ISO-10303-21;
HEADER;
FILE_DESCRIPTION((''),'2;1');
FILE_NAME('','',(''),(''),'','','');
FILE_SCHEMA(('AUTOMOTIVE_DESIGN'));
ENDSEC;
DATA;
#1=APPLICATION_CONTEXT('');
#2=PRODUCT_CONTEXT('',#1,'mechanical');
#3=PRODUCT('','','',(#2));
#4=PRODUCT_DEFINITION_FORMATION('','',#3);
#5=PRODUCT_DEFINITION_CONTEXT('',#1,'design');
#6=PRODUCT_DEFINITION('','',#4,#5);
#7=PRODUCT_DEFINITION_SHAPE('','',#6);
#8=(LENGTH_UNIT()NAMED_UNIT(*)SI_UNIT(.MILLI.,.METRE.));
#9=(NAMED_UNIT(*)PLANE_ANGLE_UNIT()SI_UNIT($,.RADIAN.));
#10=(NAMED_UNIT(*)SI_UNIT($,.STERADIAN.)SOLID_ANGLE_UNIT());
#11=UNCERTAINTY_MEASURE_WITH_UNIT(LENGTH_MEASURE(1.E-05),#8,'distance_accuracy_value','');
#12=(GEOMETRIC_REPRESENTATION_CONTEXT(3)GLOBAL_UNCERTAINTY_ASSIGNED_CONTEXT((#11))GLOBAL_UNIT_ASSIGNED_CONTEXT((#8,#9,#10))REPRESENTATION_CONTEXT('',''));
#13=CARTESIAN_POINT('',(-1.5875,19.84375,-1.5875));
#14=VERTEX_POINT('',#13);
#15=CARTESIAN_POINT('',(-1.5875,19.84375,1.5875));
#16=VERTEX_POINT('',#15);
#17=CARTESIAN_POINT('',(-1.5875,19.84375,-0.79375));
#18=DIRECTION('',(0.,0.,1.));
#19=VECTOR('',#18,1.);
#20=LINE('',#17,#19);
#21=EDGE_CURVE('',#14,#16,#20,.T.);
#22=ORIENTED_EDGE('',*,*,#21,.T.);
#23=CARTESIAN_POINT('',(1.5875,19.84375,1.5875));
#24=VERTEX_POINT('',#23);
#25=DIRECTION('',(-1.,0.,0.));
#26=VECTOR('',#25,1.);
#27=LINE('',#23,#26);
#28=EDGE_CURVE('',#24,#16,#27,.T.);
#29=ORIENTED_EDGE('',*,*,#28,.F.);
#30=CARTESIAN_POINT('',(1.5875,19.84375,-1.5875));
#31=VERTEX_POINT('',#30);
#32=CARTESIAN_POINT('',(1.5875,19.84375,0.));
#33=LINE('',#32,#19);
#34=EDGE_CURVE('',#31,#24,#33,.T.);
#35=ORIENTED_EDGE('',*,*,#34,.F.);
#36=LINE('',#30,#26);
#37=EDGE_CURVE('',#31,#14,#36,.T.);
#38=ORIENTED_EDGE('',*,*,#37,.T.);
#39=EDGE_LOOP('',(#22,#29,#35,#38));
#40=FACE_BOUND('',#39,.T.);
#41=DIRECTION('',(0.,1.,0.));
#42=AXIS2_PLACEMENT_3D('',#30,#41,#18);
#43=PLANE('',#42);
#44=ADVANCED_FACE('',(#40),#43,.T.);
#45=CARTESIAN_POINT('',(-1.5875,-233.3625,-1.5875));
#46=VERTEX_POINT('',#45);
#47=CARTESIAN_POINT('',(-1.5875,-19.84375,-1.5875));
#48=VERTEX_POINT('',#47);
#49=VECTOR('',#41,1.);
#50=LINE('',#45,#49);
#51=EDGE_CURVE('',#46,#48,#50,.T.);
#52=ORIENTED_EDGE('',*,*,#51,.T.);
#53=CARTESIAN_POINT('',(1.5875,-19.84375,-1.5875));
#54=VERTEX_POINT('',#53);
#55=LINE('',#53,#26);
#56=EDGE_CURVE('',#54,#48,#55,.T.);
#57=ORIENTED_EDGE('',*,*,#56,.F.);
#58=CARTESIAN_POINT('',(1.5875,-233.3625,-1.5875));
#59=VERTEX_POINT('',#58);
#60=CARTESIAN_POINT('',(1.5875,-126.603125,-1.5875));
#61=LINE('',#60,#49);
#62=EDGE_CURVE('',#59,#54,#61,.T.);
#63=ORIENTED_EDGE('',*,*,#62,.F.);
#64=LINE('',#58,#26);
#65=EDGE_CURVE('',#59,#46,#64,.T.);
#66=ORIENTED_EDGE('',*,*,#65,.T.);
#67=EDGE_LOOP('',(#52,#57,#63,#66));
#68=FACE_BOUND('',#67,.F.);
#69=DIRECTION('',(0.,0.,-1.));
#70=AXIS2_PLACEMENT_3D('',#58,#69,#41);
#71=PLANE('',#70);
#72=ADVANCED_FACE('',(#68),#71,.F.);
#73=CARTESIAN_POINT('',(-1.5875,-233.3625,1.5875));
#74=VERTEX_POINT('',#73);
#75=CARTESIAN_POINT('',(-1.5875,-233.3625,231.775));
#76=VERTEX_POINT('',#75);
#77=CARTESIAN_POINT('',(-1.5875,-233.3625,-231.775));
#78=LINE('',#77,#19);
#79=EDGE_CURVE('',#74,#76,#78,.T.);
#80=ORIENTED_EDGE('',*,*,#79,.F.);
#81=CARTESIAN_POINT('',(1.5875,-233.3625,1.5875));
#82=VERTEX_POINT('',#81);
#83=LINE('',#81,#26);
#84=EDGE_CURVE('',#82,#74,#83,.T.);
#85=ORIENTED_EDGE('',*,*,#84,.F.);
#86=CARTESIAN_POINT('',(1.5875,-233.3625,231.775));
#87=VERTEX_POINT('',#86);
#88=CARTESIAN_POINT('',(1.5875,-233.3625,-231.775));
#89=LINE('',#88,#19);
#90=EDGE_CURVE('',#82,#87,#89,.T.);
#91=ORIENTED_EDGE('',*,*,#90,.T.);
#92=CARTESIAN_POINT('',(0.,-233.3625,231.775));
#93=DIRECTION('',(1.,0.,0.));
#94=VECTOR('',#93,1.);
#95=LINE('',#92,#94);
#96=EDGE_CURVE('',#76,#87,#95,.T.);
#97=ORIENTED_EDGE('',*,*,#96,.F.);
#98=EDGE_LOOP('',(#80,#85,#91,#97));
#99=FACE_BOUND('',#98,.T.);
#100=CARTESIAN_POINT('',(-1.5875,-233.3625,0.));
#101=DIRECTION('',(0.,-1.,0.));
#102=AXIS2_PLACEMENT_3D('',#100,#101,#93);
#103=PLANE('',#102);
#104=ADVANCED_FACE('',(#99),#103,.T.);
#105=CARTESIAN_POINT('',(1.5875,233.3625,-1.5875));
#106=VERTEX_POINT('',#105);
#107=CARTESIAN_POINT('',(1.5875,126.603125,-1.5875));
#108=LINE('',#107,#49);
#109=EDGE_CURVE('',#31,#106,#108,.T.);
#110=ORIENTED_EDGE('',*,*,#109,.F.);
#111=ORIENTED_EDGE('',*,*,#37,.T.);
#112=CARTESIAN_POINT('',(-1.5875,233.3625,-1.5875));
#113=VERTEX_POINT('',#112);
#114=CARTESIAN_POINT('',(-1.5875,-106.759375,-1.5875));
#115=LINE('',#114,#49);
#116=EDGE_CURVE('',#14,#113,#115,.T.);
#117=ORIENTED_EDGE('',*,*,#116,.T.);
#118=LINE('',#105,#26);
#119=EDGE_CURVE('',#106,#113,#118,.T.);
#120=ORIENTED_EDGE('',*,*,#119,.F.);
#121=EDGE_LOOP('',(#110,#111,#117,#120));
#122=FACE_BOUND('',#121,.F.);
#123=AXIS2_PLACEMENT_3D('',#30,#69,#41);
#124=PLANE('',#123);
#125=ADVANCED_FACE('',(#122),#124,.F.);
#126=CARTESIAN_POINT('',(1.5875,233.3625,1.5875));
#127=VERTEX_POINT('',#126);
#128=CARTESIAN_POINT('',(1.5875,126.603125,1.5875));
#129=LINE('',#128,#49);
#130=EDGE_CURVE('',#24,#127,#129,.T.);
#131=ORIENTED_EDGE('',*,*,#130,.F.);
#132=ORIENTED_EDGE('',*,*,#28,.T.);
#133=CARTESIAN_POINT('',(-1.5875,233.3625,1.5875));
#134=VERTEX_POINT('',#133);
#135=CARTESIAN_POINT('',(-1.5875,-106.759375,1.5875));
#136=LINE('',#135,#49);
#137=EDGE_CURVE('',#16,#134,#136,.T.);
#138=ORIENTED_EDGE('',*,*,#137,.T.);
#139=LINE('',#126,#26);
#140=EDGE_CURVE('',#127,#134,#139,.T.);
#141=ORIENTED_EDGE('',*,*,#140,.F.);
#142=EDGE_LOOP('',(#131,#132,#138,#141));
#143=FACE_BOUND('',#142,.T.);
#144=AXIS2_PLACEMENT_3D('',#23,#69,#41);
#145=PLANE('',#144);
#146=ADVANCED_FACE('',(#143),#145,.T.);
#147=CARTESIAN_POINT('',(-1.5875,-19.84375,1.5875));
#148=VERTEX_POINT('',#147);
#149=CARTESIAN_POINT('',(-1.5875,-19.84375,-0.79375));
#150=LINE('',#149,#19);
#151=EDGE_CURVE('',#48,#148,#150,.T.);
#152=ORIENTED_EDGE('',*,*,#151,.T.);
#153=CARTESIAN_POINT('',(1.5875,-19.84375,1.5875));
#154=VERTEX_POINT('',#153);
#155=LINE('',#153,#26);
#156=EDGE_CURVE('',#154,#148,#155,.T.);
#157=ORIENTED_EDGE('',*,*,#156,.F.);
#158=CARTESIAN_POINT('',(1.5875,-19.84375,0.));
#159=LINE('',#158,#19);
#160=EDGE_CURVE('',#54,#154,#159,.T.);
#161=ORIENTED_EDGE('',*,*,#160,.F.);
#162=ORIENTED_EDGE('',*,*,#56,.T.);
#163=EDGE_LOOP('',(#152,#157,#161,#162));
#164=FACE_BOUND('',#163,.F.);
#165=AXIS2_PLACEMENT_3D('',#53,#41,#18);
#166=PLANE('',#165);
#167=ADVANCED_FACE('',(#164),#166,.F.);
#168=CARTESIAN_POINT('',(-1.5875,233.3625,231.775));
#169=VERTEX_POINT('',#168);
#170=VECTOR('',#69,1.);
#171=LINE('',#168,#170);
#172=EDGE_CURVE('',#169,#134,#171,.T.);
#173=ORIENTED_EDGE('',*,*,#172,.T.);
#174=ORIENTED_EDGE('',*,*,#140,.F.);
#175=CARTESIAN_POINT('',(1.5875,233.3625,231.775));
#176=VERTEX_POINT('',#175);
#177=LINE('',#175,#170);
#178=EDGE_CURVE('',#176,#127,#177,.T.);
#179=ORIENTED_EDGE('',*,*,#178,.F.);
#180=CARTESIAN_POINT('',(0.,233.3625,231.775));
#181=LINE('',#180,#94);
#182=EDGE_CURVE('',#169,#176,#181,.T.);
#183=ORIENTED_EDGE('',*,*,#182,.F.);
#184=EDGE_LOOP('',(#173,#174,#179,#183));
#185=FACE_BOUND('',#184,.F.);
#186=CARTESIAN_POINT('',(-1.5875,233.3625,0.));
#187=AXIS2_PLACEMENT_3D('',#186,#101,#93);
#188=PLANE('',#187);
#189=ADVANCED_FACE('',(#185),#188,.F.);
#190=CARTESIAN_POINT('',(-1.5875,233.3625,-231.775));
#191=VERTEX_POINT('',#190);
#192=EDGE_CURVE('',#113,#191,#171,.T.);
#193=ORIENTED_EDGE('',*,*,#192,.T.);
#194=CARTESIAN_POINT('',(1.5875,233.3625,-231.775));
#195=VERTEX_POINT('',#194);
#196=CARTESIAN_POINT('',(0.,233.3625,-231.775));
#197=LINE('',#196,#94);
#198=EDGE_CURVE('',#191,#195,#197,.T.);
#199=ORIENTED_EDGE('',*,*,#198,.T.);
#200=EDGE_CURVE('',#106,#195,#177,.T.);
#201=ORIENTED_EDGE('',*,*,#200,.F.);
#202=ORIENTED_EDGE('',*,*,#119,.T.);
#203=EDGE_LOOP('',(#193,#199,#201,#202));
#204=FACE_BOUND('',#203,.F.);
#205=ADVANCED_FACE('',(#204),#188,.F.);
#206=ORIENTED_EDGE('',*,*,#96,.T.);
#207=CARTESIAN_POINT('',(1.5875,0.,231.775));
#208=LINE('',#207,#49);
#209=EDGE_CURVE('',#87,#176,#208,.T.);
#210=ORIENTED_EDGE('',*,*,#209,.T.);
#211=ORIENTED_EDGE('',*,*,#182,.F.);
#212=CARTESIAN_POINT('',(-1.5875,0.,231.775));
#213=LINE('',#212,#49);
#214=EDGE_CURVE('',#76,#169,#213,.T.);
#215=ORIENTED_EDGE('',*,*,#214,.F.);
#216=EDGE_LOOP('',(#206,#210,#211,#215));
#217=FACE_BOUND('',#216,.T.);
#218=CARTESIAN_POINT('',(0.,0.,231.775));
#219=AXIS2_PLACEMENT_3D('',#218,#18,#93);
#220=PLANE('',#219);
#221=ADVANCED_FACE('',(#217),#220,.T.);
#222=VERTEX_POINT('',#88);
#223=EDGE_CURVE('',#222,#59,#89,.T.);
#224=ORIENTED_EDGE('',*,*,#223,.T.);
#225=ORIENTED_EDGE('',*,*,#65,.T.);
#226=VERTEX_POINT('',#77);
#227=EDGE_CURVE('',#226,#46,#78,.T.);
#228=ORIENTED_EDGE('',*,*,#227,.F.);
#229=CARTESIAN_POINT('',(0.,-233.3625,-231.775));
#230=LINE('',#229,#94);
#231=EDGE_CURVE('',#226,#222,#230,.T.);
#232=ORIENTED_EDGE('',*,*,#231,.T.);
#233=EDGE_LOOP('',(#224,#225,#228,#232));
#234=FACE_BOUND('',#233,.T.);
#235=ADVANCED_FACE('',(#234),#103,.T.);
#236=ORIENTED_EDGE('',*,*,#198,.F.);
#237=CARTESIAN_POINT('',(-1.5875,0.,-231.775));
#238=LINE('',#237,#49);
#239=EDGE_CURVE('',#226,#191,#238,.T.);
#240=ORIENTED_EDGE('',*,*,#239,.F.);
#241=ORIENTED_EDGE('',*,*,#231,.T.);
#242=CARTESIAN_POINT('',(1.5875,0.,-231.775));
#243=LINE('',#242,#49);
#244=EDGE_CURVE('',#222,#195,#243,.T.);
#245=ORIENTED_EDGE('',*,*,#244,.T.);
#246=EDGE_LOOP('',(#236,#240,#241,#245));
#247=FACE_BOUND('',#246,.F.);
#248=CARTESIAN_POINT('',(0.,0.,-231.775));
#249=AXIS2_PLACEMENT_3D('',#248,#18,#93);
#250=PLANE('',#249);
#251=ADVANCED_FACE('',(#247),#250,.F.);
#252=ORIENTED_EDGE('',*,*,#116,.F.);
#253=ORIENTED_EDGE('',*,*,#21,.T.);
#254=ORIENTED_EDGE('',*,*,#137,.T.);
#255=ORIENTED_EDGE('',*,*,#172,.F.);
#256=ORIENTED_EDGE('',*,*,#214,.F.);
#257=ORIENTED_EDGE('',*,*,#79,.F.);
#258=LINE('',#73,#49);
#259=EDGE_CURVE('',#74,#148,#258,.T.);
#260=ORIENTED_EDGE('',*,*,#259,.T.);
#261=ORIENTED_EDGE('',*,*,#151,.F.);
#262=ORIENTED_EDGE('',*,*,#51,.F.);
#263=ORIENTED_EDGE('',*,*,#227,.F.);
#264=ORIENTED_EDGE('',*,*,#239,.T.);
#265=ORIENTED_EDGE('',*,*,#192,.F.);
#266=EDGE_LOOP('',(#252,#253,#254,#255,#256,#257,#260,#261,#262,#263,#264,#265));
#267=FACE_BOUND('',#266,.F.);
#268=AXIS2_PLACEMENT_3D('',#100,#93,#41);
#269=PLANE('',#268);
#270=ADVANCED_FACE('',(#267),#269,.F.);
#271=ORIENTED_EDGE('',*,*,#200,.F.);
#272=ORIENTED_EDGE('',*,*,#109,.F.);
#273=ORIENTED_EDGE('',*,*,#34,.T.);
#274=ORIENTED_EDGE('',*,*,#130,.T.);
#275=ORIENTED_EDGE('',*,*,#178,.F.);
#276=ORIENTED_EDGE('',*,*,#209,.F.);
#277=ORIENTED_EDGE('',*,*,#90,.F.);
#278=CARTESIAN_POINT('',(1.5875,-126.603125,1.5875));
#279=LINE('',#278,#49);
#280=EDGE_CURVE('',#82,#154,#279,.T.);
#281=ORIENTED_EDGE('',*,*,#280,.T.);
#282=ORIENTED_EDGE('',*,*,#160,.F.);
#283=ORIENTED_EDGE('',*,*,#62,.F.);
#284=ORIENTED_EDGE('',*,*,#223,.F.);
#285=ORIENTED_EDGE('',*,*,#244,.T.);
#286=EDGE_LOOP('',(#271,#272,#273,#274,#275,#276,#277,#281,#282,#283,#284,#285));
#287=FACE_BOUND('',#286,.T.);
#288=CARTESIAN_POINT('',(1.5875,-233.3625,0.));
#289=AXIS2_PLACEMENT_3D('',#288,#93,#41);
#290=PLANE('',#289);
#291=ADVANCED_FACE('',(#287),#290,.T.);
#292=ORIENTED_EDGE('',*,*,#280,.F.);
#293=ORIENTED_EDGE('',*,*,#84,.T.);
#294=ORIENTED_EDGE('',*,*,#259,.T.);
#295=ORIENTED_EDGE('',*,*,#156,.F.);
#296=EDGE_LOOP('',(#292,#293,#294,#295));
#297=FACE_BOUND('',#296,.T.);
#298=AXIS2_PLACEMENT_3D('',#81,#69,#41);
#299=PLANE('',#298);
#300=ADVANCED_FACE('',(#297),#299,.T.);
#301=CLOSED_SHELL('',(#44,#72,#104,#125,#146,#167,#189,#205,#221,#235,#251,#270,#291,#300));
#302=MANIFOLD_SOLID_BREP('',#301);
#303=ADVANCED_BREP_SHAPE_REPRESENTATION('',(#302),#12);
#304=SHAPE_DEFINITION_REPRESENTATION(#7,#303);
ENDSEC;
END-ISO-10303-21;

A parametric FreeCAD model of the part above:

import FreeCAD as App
import Part
import Sketcher

V = App.Vector
Q = App.Units.Quantity

doc = App.newDocument("Part")
body = doc.addObject("PartDesign::Body", "Body")

# Sketch on XY plane
sketch1 = body.newObject("Sketcher::SketchObject", "Sketch")
sketch1.AttachmentSupport = (doc.getObject("XY_Plane"), [""])
sketch1.MapMode = "FlatFace"
sketch1.addGeometry(Part.LineSegment(V(-1.6, 233.4, 0), V(-1.6, -233.4, 0)), False)
sketch1.addGeometry(Part.LineSegment(V(-1.6, -233.4, 0), V(1.6, -233.4, 0)), False)
sketch1.addGeometry(Part.LineSegment(V(1.6, -233.4, 0), V(1.6, 233.4, 0)), False)
sketch1.addGeometry(Part.LineSegment(V(1.6, 233.4, 0), V(-1.6, 233.4, 0)), False)
sketch1.addConstraint(Sketcher.Constraint("Coincident", 0, 2, 1, 1))
sketch1.addConstraint(Sketcher.Constraint("Coincident", 1, 2, 2, 1))
sketch1.addConstraint(Sketcher.Constraint("Coincident", 2, 2, 3, 1))
sketch1.addConstraint(Sketcher.Constraint("Coincident", 3, 2, 0, 1))
sketch1.addConstraint(Sketcher.Constraint("Vertical", 0))
sketch1.addConstraint(Sketcher.Constraint("Horizontal", 1))
sketch1.addConstraint(Sketcher.Constraint("Vertical", 2))
sketch1.addConstraint(Sketcher.Constraint("Horizontal", 3))
sketch1.addConstraint(Sketcher.Constraint("Symmetric", 0, 2, 2, 2, -1, 1))
sketch1.addConstraint(Sketcher.Constraint("DistanceX", 1, 1, 1, 2, Q("0.125 in")))
sketch1.addConstraint(Sketcher.Constraint("DistanceY", 0, 2, 0, 1, Q("18.375 in")))
pad1 = body.newObject("PartDesign::Pad", "Pad")
pad1.Profile = sketch1
pad1.Length = Q("18.25 in")
pad1.Midplane = True

# Sketch on YZ plane
sketch2 = body.newObject("Sketcher::SketchObject", "Sketch001")
sketch2.AttachmentSupport = (doc.getObject("YZ_Plane"), [""])
sketch2.MapMode = "FlatFace"
sketch2.AttachmentOffset = App.Placement(V(0, 0, 0.0625 * 25.4), App.Rotation())
sketch2.addGeometry(Part.LineSegment(V(-233.4, 1.6, 0), V(-233.4, -1.6, 0)), False)
sketch2.addGeometry(Part.LineSegment(V(-233.4, -1.6, 0), V(-19.8, -1.6, 0)), False)
sketch2.addGeometry(Part.LineSegment(V(-19.8, -1.6, 0), V(-19.8, 1.6, 0)), False)
sketch2.addGeometry(Part.LineSegment(V(-19.8, 1.6, 0), V(-233.4, 1.6, 0)), False)
sketch2.addGeometry(Part.LineSegment(V(19.8, 1.6, 0), V(19.8, -1.6, 0)), False)
sketch2.addGeometry(Part.LineSegment(V(19.8, -1.6, 0), V(233.4, -1.6, 0)), False)
sketch2.addGeometry(Part.LineSegment(V(233.4, -1.6, 0), V(233.4, 1.6, 0)), False)
sketch2.addGeometry(Part.LineSegment(V(233.4, 1.6, 0), V(19.8, 1.6, 0)), False)
sketch2.addConstraint(Sketcher.Constraint("Coincident", 0, 2, 1, 1))
sketch2.addConstraint(Sketcher.Constraint("Coincident", 1, 2, 2, 1))
sketch2.addConstraint(Sketcher.Constraint("Coincident", 2, 2, 3, 1))
sketch2.addConstraint(Sketcher.Constraint("Coincident", 3, 2, 0, 1))
sketch2.addConstraint(Sketcher.Constraint("Coincident", 4, 2, 5, 1))
sketch2.addConstraint(Sketcher.Constraint("Coincident", 5, 2, 6, 1))
sketch2.addConstraint(Sketcher.Constraint("Coincident", 6, 2, 7, 1))
sketch2.addConstraint(Sketcher.Constraint("Coincident", 7, 2, 4, 1))
sketch2.addConstraint(Sketcher.Constraint("Vertical", 0))
sketch2.addConstraint(Sketcher.Constraint("Horizontal", 1))
sketch2.addConstraint(Sketcher.Constraint("Vertical", 2))
sketch2.addConstraint(Sketcher.Constraint("Horizontal", 3))
sketch2.addConstraint(Sketcher.Constraint("Vertical", 4))
sketch2.addConstraint(Sketcher.Constraint("Horizontal", 5))
sketch2.addConstraint(Sketcher.Constraint("Vertical", 6))
sketch2.addConstraint(Sketcher.Constraint("Horizontal", 7))
sketch2.addConstraint(Sketcher.Constraint("Symmetric", 2, 2, 4, 2, -1, 1))
sketch2.addConstraint(Sketcher.Constraint("Symmetric", 0, 2, 6, 2, -1, 1))
sketch2.addConstraint(Sketcher.Constraint("Horizontal", 1, 2, 4, 2))
sketch2.addConstraint(Sketcher.Constraint("DistanceX", 1, 1, 1, 2, Q("8.40625 in")))
sketch2.addConstraint(Sketcher.Constraint("DistanceY", 0, 2, 0, 1, Q("0.125 in")))
sketch2.addConstraint(Sketcher.Constraint("DistanceX", 0, 2, -1, 1, Q("9.1875 in")))
pocket1 = body.newObject("PartDesign::Pocket", "Pocket")
pocket1.Profile = sketch2
pocket1.Type = "ThroughAll"

doc.recompute()
